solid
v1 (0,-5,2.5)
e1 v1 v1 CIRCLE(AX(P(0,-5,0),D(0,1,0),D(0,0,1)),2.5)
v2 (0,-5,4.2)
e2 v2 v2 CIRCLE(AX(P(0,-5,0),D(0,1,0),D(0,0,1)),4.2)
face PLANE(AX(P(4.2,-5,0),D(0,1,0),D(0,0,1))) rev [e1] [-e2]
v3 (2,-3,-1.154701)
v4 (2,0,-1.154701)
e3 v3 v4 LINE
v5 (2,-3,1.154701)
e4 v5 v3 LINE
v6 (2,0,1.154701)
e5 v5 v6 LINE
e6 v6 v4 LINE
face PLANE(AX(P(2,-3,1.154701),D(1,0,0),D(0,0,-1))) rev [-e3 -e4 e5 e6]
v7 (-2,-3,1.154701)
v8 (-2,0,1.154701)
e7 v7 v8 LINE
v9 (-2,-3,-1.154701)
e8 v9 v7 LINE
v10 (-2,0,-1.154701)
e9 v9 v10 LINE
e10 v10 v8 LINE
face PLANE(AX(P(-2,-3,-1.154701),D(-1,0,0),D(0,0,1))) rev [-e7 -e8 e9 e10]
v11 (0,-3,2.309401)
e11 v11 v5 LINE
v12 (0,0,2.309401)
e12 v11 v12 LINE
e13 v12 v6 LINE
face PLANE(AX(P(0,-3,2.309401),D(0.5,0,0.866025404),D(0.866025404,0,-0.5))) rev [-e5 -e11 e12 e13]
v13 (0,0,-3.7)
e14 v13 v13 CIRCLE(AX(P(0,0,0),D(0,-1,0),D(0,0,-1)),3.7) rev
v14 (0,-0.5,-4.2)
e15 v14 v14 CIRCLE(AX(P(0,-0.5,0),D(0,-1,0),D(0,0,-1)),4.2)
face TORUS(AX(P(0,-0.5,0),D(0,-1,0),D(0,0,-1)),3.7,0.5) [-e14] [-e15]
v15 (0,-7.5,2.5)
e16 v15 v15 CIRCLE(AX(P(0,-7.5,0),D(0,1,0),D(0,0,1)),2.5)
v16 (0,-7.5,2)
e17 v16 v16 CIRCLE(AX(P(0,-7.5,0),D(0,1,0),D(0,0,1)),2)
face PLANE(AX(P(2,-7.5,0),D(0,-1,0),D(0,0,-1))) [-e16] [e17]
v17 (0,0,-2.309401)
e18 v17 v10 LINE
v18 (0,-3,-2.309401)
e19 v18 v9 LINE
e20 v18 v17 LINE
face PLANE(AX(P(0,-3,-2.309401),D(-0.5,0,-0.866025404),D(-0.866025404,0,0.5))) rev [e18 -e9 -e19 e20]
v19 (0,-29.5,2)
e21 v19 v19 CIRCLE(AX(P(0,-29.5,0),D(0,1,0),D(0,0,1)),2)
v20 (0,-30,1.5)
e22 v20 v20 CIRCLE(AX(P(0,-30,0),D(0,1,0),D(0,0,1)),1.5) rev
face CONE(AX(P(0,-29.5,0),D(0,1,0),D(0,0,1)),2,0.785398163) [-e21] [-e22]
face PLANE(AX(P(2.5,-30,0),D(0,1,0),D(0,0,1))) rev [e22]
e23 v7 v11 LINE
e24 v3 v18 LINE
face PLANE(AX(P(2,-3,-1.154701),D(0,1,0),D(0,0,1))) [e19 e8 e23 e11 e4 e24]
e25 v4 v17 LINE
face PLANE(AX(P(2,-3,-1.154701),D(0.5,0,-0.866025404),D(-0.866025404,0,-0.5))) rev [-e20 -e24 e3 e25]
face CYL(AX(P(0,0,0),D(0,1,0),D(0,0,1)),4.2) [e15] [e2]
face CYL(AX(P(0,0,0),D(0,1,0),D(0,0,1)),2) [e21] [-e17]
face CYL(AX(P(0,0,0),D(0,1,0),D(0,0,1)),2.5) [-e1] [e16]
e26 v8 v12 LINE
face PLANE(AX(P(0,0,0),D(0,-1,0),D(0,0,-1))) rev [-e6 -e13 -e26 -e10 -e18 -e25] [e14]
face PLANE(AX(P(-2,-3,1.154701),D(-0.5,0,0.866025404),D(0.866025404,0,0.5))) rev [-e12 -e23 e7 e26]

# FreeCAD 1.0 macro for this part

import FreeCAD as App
import Part
import Sketcher

V = App.Vector
Q = App.Units.Quantity


def edges_at(feature, points):
    """Names of the edges that pass closest to the given points."""
    edges = feature.Shape.Edges
    near = lambda p: min(range(len(edges)), key=lambda i: edges[i].distToShape(Part.Vertex(*p))[0])
    return sorted({f"Edge{near(p) + 1}" for p in points})


def add_polygon(sketch, points):
    """Adds a closed chain of lines whose ends are joined by coincident constraints."""
    first, n = sketch.GeometryCount, len(points)
    for a, b in zip(points, points[1:] + points[:1]):
        sketch.addGeometry(Part.LineSegment(App.Vector(*a, 0), App.Vector(*b, 0)), False)
    for i in range(n):
        sketch.addConstraint(Sketcher.Constraint("Coincident", first + i, 2, first + (i + 1) % n, 1))

doc = App.newDocument("Part")
body = doc.addObject("PartDesign::Body", "Body")

# Sketch on XY plane
sketch1 = body.newObject("Sketcher::SketchObject", "Sketch")
sketch1.AttachmentSupport = (doc.getObject("XY_Plane"), [""])
sketch1.MapMode = "FlatFace"
add_polygon(sketch1, [(4.2, 0), (0, 0), (0, -30), (2.5, -30), (2.5, -5), (4.2, -5)])  # lines 0-5
sketch1.addConstraint(Sketcher.Constraint("Horizontal", 0))
sketch1.addConstraint(Sketcher.Constraint("Vertical", 1))
sketch1.addConstraint(Sketcher.Constraint("Horizontal", 2))
sketch1.addConstraint(Sketcher.Constraint("Vertical", 3))
sketch1.addConstraint(Sketcher.Constraint("Horizontal", 4))
sketch1.addConstraint(Sketcher.Constraint("Vertical", 5))
sketch1.addConstraint(Sketcher.Constraint("Coincident", 0, 2, -1, 1))
sketch1.addConstraint(Sketcher.Constraint("DistanceY", 1, 2, 1, 1, 30.0))
sketch1.addConstraint(Sketcher.Constraint("DistanceY", 3, 1, 3, 2, 25.0))
sketch1.addConstraint(Sketcher.Constraint("DistanceX", 0, 2, 0, 1, 4.2))
sketch1.addConstraint(Sketcher.Constraint("DistanceX", 2, 1, 2, 2, 2.5))
revolution = body.newObject("PartDesign::Revolution", "Revolution")
revolution.Profile = sketch1
revolution.ReferenceAxis = (sketch1, ["V_Axis"])
revolution.Angle = 360

# Sketch on XZ plane
sketch2 = body.newObject("Sketcher::SketchObject", "Sketch001")
sketch2.AttachmentSupport = (doc.getObject("XZ_Plane"), [""])
sketch2.MapMode = "FlatFace"
add_polygon(sketch2, [(2, -1.2), (0, -2.3), (-2, -1.2), (-2, 1.2), (0, 2.3), (2, 1.2)])  # lines 0-5
sketch2.addConstraint(Sketcher.Constraint("Vertical", 2))
sketch2.addConstraint(Sketcher.Constraint("Vertical", 5))
sketch2.addConstraint(Sketcher.Constraint("Symmetric", 0, 2, 3, 2, -1, 1))
sketch2.addConstraint(Sketcher.Constraint("Symmetric", 1, 2, 4, 2, -1, 1))
sketch2.addConstraint(Sketcher.Constraint("PointOnObject", 0, 2, -2))
sketch2.addConstraint(Sketcher.Constraint("Parallel", 0, 3))
sketch2.addConstraint(Sketcher.Constraint("Horizontal", 2, 2, 4, 2))
sketch2.addConstraint(Sketcher.Constraint("Angle", 0, Q("-150 deg")))
sketch2.addConstraint(Sketcher.Constraint("DistanceX", 1, 2, -1, 1, 2.0))
sketch2.addConstraint(Sketcher.Constraint("DistanceY", 2, 1, 2, 2, 2.309401))
pocket1 = body.newObject("PartDesign::Pocket", "Pocket")
pocket1.Profile = sketch2
pocket1.Length = 3
pocket1.Reversed = True
doc.recompute()

chamfer = body.newObject("PartDesign::Chamfer", "Chamfer")
chamfer.Base = (pocket1, edges_at(pocket1, [(-2.5, -30, 0)]))
chamfer.Size = 0.5
doc.recompute()

fillet = body.newObject("PartDesign::Fillet", "Fillet")
fillet.Base = (chamfer, edges_at(chamfer, [(-4.2, 0, 0)]))
fillet.Radius = 0.5

# Sketch on XY plane
sketch3 = body.newObject("Sketcher::SketchObject", "Sketch002")
sketch3.AttachmentSupport = (doc.getObject("XY_Plane"), [""])
sketch3.MapMode = "FlatFace"
add_polygon(sketch3, [(2, -7.5), (2, -30), (2.5, -30), (2.5, -7.5)])  # lines 0-3
sketch3.addConstraint(Sketcher.Constraint("Vertical", 0))
sketch3.addConstraint(Sketcher.Constraint("Horizontal", 1))
sketch3.addConstraint(Sketcher.Constraint("Vertical", 2))
sketch3.addConstraint(Sketcher.Constraint("Horizontal", 3))
sketch3.addConstraint(Sketcher.Constraint("DistanceX", 1, 1, 1, 2, 0.5))
sketch3.addConstraint(Sketcher.Constraint("DistanceY", 0, 2, 0, 1, 22.5))
sketch3.addConstraint(Sketcher.Constraint("DistanceX", -1, 1, 0, 2, 2.0))
sketch3.addConstraint(Sketcher.Constraint("DistanceY", 0, 2, -1, 1, 30.0))
groove = body.newObject("PartDesign::Groove", "Groove")
groove.Profile = sketch3
groove.ReferenceAxis = (sketch3, ["V_Axis"])
groove.Angle = 360
doc.recompute()

chamfer2 = body.newObject("PartDesign::Chamfer", "Chamfer001")
chamfer2.Base = (groove, edges_at(groove, [(-2, -30, 0)]))
chamfer2.Size = 0.5

doc.recompute()
